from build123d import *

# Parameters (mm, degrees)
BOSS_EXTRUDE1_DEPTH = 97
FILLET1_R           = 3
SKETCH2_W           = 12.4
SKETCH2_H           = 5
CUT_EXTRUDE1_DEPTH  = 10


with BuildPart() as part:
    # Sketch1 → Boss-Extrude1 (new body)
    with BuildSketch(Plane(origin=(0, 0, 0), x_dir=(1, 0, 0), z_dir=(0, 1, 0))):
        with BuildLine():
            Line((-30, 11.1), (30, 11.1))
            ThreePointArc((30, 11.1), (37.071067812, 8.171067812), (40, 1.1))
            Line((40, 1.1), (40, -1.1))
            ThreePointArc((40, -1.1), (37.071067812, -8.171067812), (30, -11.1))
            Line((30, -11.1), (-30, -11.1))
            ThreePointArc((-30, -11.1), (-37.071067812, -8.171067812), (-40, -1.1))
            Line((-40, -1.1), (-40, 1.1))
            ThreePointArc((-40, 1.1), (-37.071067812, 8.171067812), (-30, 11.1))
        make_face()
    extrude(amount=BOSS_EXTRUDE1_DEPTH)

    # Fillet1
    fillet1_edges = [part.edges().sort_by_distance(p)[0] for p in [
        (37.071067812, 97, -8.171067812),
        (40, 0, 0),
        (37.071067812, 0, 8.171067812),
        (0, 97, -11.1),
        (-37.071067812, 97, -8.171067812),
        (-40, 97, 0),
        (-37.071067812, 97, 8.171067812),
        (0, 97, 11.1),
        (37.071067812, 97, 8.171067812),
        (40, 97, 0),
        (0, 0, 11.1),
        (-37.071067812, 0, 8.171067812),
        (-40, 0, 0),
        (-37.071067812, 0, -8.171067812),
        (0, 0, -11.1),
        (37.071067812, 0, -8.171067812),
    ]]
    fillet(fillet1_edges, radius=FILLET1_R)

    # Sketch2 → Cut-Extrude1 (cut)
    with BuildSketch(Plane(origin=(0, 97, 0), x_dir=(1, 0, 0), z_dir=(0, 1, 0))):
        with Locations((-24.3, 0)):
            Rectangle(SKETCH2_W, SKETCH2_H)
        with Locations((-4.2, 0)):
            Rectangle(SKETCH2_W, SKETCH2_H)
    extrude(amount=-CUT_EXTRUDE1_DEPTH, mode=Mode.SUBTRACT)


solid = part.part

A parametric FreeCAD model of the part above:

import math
import FreeCAD as App
import Part
import Sketcher


def edges_at(feature, points):
    """Names of the edges that pass closest to the given points."""
    edges = feature.Shape.Edges
    near = lambda p: min(range(len(edges)), key=lambda i: edges[i].distToShape(Part.Vertex(*p))[0])
    return sorted({f"Edge{near(p) + 1}" for p in points})


def add_polygon(sketch, points):
    """Adds a closed chain of lines whose ends are joined by coincident constraints."""
    first, n = sketch.GeometryCount, len(points)
    for a, b in zip(points, points[1:] + points[:1]):
        sketch.addGeometry(Part.LineSegment(App.Vector(*a, 0), App.Vector(*b, 0)), False)
    for i in range(n):
        sketch.addConstraint(Sketcher.Constraint("Coincident", first + i, 2, first + (i + 1) % n, 1))

doc = App.newDocument("Part")
params = doc.addObject("Spreadsheet::Sheet", "Params")
for row, (alias, value) in enumerate([
    ("sketch1_radius", "10 mm"),
    ("sketch1_width", "60 mm"),
    ("sketch1_height", "2.2 mm"),
    ("pad1_length", "97 mm"),
    ("fillet_radius", "3 mm"),
    ("sketch2_height", "5 mm"),
    ("sketch2_width", "12.4 mm"),
    ("pocket1_length", "10 mm"),
], start=1):
    params.set(f"A{row}", alias)
    params.set(f"B{row}", "=" + value)
    params.setAlias(f"B{row}", alias)

body = doc.addObject("PartDesign::Body", "Body")

# Sketch on XZ plane
sketch1 = doc.addObject("Sketcher::SketchObject", "Sketch")
body.addObject(sketch1)
sketch1.AttachmentSupport = (doc.XZ_Plane, [""])
sketch1.MapMode = "FlatFace"
sketch1.addGeometry([
    Part.LineSegment(App.Vector(30, -11.1, 0), App.Vector(-30, -11.1, 0)),  # 0
    Part.ArcOfCircle(Part.Circle(App.Vector(-30, -1.1, 0), App.Vector(0, 0, 1), 10), math.radians(180), math.radians(270)),  # 1
    Part.LineSegment(App.Vector(-40, -1.1, 0), App.Vector(-40, 1.1, 0)),  # 2
    Part.ArcOfCircle(Part.Circle(App.Vector(-30, 1.1, 0), App.Vector(0, 0, 1), 10), math.radians(90), math.radians(180)),  # 3
    Part.LineSegment(App.Vector(-30, 11.1, 0), App.Vector(30, 11.1, 0)),  # 4
    Part.ArcOfCircle(Part.Circle(App.Vector(30, 1.1, 0), App.Vector(0, 0, 1), 10), math.radians(0), math.radians(90)),  # 5
    Part.LineSegment(App.Vector(40, 1.1, 0), App.Vector(40, -1.1, 0)),  # 6
    Part.ArcOfCircle(Part.Circle(App.Vector(30, -1.1, 0), App.Vector(0, 0, 1), 10), math.radians(-90), math.radians(0)),  # 7
], False)
sketch1.addConstraint([
    Sketcher.Constraint("Tangent", 0, 2, 1, 2),
    Sketcher.Constraint("Tangent", 1, 1, 2, 1),
    Sketcher.Constraint("Tangent", 2, 2, 3, 2),
    Sketcher.Constraint("Tangent", 3, 1, 4, 1),
    Sketcher.Constraint("Tangent", 4, 2, 5, 2),
    Sketcher.Constraint("Tangent", 5, 1, 6, 1),
    Sketcher.Constraint("Tangent", 6, 2, 7, 2),
    Sketcher.Constraint("Tangent", 7, 1, 0, 1),
    Sketcher.Constraint("Horizontal", 0),
    Sketcher.Constraint("Vertical", 2),
    Sketcher.Constraint("Horizontal", 4),
    Sketcher.Constraint("Vertical", 6),
    Sketcher.Constraint("Equal", 1, 3),
    Sketcher.Constraint("Equal", 3, 5),
    Sketcher.Constraint("Equal", 5, 7),
    Sketcher.Constraint("Symmetric", 1, 3, 5, 3, -1, 1),
    Sketcher.Constraint("Radius", 1, 10.0),
    Sketcher.Constraint("DistanceX", 0, 2, 0, 1, 60.0),
    Sketcher.Constraint("DistanceY", 2, 1, 2, 2, 2.2),
])
sketch1.setExpression("Constraints[16]", "Params.sketch1_radius")
sketch1.setExpression("Constraints[17]", "Params.sketch1_width")
sketch1.setExpression("Constraints[18]", "Params.sketch1_height")
pad1 = doc.addObject("PartDesign::Pad", "Pad")
body.addObject(pad1)
pad1.Profile = sketch1
pad1.setExpression("Length", "Params.pad1_length")
pad1.Reversed = True
doc.recompute()

fillet = doc.addObject("PartDesign::Fillet", "Fillet")
body.addObject(fillet)
fillet.Base = (pad1, edges_at(pad1, [
    (37.071, 97, -8.171),
    (40, 0, 0),
    (37.071, 0, 8.171),
    (0, 97, -11.1),
    (-37.071, 97, -8.171),
    (-40, 97, 0),
    (-37.071, 97, 8.171),
    (0, 97, 11.1),
    (37.071, 97, 8.171),
    (40, 97, 0),
    (0, 0, 11.1),
    (-37.071, 0, 8.171),
    (-40, 0, 0),
    (-37.071, 0, -8.171),
    (0, 0, -11.1),
    (37.071, 0, -8.171),
]))
fillet.setExpression("Radius", "Params.fillet_radius")

# Sketch on XZ plane
sketch2 = doc.addObject("Sketcher::SketchObject", "Sketch001")
body.addObject(sketch2)
sketch2.AttachmentSupport = (doc.XZ_Plane, [""])
sketch2.MapMode = "FlatFace"
sketch2.AttachmentOffset = App.Placement(App.Vector(0, 0, -97), App.Rotation())
add_polygon(sketch2, [(-30, -2), (-30, 2), (-18, 2), (-18, -2)])  # lines 0-3
add_polygon(sketch2, [(-10, -2), (-10, 2), (2, 2), (2, -2)])  # lines 4-7
sketch2.addConstraint([
    Sketcher.Constraint("Vertical", 0),
    Sketcher.Constraint("Horizontal", 1),
    Sketcher.Constraint("Vertical", 2),
    Sketcher.Constraint("Horizontal", 3),
    Sketcher.Constraint("Vertical", 4),
    Sketcher.Constraint("Horizontal", 5),
    Sketcher.Constraint("Vertical", 6),
    Sketcher.Constraint("Horizontal", 7),
    Sketcher.Constraint("Horizontal", 1, 2, 4, 2),
    Sketcher.Constraint("Horizontal", 3, 2, 6, 2),
    Sketcher.Constraint("Equal", 3, 5),
    Sketcher.Constraint("DistanceY", 0, 1, 0, 2, 5.0),
    Sketcher.Constraint("DistanceX", 1, 1, 1, 2, 12.4),
    Sketcher.Constraint("DistanceX", -1, 1, 5, 2, 2.0),
    Sketcher.Constraint("DistanceX", 0, 2, -1, 1, 30.5),
    Sketcher.Constraint("DistanceY", -1, 1, 0, 2, 2.5),
])
sketch2.setExpression("Constraints[19]", "Params.sketch2_height")
sketch2.setExpression("Constraints[20]", "Params.sketch2_width")
pocket1 = doc.addObject("PartDesign::Pocket", "Pocket")
body.addObject(pocket1)
pocket1.Profile = sketch2
pocket1.setExpression("Length", "Params.pocket1_length")
pocket1.Reversed = True

doc.recompute()
